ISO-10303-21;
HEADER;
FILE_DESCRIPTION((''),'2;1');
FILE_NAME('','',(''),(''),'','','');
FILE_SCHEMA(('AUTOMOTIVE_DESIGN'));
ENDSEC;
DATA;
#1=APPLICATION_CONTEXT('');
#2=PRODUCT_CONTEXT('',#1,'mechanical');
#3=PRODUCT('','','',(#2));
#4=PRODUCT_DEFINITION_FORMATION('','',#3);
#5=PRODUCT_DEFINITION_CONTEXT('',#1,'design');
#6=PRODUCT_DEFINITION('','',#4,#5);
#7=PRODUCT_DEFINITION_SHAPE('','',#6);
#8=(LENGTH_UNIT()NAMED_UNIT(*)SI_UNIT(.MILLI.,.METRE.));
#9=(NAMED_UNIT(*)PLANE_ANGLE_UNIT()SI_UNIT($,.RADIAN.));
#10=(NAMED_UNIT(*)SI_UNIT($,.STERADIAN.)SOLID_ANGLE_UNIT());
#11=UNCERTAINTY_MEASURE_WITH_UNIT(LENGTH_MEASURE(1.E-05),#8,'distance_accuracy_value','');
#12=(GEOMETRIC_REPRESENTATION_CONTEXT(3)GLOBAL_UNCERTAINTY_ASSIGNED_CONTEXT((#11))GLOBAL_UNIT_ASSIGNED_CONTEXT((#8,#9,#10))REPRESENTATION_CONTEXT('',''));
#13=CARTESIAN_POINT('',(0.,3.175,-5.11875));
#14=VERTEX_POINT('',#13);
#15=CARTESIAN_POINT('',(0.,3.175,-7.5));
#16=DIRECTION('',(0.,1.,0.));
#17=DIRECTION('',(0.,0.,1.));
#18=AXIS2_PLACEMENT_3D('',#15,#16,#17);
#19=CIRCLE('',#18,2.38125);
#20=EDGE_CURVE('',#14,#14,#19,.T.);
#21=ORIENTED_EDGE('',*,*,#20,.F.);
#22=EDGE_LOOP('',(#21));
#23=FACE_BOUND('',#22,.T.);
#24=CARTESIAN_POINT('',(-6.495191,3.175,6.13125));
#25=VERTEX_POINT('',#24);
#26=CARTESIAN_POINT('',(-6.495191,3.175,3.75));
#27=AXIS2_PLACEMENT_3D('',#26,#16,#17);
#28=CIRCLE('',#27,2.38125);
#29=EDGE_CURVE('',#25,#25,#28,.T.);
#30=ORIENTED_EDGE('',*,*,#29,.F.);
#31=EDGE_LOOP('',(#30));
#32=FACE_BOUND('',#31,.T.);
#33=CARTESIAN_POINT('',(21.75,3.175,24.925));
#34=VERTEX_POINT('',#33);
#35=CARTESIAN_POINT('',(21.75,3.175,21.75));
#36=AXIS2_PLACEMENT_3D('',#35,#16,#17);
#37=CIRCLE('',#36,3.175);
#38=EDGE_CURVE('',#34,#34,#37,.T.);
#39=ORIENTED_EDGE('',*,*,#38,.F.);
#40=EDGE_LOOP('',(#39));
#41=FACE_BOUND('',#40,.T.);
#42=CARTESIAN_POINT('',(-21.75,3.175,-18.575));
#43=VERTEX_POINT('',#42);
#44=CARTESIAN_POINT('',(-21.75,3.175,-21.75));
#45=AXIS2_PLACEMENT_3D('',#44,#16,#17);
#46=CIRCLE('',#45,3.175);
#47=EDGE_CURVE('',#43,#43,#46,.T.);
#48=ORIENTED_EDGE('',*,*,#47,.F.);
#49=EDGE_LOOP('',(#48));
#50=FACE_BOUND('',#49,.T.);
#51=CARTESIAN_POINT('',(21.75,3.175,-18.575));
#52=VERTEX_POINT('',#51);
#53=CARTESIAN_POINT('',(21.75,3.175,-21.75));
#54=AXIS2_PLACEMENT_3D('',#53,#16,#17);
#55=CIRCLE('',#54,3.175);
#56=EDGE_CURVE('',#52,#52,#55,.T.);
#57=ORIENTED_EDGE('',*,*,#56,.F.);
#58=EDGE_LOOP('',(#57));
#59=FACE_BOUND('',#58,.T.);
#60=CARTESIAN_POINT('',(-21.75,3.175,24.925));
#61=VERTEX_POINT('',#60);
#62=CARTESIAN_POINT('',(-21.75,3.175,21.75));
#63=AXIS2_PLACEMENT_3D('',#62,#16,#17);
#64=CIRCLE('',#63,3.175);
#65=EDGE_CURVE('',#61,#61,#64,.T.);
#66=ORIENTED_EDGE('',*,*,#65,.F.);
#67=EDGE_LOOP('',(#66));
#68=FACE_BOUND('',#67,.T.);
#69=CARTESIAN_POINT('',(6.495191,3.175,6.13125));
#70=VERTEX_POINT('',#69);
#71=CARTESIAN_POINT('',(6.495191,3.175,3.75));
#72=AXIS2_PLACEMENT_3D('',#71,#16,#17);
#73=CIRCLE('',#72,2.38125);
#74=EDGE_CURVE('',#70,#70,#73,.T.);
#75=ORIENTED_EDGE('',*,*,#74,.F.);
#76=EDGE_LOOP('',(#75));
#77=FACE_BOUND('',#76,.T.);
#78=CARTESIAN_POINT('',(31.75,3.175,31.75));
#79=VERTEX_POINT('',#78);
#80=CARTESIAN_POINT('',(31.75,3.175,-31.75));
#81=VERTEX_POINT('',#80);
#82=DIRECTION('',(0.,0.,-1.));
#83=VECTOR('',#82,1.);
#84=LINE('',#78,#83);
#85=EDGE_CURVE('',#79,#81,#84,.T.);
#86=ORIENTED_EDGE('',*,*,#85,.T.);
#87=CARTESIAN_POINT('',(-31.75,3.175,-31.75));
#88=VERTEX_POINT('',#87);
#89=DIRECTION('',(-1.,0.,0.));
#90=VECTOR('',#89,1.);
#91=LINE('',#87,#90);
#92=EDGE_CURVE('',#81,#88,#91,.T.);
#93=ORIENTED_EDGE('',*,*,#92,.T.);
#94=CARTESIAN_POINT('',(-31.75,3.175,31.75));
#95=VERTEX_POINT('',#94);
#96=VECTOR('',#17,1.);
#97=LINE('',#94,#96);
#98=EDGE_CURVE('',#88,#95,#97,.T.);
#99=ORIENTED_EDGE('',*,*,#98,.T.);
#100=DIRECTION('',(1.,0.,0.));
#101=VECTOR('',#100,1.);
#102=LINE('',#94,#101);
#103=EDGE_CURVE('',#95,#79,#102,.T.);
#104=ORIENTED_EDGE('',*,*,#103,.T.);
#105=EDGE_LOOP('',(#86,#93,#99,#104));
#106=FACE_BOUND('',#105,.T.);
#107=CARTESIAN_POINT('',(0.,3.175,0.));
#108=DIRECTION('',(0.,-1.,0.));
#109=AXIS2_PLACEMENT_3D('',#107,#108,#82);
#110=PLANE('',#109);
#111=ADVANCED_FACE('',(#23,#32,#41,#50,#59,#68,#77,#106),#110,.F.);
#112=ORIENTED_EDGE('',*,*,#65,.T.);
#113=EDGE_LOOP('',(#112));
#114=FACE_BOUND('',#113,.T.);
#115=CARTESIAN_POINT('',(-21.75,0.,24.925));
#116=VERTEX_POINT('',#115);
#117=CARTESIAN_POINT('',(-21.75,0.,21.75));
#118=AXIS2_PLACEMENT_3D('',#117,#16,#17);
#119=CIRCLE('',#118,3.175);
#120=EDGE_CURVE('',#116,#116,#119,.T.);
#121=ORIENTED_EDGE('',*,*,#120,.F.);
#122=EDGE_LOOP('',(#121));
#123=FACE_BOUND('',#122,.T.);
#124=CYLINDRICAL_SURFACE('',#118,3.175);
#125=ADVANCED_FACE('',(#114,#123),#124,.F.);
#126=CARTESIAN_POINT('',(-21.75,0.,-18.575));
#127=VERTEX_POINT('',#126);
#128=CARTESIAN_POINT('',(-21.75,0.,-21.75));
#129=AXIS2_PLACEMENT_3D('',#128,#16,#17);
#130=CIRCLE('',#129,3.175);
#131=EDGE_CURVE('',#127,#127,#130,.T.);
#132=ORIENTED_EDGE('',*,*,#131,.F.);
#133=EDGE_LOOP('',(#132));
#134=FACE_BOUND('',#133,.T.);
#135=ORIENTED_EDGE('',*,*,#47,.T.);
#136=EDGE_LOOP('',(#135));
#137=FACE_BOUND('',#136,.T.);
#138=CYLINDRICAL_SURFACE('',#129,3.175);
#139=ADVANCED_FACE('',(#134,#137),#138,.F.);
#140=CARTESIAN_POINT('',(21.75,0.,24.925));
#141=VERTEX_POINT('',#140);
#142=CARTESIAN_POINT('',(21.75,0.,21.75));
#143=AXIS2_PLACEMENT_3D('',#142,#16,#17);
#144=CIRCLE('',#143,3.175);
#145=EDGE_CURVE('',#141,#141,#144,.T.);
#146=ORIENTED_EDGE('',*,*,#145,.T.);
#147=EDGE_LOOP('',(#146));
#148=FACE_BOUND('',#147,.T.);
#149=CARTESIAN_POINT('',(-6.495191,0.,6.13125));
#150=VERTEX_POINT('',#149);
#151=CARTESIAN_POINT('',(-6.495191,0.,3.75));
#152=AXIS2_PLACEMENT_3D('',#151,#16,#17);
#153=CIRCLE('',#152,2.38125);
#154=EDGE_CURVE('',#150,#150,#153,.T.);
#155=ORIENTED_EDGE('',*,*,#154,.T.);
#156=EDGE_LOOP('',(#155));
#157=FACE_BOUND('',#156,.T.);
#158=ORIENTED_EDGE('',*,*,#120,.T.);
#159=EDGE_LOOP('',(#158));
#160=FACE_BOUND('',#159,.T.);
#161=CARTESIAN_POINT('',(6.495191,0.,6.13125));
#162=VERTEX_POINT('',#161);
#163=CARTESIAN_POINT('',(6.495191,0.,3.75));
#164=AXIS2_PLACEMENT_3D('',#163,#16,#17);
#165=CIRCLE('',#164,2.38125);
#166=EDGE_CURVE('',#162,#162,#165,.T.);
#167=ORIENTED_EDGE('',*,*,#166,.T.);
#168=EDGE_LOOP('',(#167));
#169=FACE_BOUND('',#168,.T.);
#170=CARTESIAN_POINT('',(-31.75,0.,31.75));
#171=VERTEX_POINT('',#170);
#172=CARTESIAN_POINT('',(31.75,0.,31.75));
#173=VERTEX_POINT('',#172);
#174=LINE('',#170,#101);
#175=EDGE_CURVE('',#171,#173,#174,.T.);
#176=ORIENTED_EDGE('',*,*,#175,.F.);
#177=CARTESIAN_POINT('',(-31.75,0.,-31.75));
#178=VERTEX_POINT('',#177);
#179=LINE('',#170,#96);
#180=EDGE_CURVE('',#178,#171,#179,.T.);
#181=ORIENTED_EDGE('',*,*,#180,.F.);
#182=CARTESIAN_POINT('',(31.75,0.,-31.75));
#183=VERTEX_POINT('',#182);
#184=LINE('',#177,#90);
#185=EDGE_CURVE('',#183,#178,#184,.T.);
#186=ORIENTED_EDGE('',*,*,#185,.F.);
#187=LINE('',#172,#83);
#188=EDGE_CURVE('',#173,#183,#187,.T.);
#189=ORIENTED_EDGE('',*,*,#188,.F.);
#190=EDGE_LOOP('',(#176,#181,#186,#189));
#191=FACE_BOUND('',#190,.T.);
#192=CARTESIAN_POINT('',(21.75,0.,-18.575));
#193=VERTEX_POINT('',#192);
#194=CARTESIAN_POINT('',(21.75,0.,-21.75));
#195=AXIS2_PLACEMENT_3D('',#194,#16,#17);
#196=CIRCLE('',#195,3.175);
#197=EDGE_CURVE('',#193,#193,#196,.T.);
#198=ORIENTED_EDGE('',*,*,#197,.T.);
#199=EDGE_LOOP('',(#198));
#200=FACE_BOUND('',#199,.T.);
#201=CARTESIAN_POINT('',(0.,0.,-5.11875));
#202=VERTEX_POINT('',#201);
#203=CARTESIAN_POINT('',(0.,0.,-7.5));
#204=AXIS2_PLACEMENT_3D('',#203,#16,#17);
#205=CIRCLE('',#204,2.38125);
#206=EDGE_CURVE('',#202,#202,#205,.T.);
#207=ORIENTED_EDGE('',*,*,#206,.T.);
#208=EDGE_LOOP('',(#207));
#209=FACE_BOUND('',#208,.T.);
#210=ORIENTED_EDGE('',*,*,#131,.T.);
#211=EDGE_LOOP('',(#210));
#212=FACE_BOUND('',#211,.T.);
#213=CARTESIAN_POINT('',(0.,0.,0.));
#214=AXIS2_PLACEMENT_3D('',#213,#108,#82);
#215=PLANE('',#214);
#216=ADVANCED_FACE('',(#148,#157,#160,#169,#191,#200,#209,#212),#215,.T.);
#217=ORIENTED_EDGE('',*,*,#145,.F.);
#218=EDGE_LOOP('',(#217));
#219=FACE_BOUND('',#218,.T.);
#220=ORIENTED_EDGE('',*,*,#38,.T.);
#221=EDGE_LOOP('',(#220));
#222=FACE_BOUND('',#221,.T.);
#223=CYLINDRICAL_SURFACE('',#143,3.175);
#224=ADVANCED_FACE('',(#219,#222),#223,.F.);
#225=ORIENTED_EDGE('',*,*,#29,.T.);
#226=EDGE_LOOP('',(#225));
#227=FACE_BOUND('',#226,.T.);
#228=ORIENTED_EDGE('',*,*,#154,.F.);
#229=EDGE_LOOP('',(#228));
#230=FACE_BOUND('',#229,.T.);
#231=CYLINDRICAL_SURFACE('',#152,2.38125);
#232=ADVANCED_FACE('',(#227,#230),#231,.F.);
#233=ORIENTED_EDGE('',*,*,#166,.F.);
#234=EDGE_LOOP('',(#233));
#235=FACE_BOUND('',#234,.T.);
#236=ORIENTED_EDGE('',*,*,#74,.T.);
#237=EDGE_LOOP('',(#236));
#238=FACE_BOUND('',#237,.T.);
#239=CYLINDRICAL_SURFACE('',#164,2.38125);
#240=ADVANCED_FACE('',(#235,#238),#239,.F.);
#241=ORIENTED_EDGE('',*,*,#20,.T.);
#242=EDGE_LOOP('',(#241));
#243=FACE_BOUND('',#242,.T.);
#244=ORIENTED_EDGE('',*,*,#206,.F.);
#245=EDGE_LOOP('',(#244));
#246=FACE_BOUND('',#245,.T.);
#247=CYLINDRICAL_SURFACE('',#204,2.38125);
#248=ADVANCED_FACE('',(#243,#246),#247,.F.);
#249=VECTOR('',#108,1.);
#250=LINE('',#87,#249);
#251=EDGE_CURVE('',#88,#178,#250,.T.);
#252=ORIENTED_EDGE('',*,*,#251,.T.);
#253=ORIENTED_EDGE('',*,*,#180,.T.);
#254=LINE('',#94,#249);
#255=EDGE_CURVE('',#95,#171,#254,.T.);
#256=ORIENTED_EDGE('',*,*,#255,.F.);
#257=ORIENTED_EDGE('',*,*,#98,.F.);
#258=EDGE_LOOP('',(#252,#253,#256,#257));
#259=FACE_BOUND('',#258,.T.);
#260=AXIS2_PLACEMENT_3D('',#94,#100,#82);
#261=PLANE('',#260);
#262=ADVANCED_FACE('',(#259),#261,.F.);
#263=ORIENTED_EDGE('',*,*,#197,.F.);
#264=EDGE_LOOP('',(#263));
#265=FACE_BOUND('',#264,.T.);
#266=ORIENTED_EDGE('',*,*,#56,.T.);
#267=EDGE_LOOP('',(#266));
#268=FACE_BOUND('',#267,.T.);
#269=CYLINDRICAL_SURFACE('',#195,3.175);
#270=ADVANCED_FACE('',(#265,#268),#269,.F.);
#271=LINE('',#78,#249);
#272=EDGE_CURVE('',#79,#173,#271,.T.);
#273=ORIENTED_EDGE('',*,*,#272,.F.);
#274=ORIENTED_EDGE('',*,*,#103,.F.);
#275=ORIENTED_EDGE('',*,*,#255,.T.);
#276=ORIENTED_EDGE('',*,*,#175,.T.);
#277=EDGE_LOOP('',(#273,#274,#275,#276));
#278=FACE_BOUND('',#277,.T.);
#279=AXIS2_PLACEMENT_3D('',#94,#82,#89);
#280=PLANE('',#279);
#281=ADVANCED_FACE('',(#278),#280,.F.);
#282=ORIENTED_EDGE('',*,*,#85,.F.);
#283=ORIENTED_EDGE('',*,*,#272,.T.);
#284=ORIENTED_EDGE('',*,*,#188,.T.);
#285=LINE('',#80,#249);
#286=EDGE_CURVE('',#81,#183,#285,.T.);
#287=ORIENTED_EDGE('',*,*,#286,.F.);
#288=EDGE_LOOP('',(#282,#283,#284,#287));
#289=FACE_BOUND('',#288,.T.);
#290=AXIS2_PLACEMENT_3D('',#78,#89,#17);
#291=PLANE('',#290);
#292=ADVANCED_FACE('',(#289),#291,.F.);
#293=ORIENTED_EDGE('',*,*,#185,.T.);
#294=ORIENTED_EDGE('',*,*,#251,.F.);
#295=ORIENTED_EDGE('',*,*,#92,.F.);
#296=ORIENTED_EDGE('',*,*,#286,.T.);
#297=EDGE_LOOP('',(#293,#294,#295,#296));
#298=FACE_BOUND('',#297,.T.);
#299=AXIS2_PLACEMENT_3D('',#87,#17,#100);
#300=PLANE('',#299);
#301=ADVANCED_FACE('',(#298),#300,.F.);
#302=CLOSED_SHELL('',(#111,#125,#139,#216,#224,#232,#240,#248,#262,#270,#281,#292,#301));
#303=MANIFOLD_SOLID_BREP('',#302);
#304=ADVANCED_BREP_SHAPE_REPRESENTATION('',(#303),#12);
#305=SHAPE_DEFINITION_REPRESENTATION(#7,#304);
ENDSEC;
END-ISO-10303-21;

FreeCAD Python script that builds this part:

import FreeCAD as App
import Part
import Sketcher

V = App.Vector
Q = App.Units.Quantity

doc = App.newDocument("Part")
body = doc.addObject("PartDesign::Body", "Body")

# Sketch on XZ plane
sketch1 = body.newObject("Sketcher::SketchObject", "Sketch")
sketch1.AttachmentSupport = (doc.getObject("XZ_Plane"), [""])
sketch1.MapMode = "FlatFace"
sketch1.addGeometry([
    Part.LineSegment(V(-32, -32, 0), V(-32, 32, 0)),
    Part.LineSegment(V(-32, 32, 0), V(32, 32, 0)),
    Part.LineSegment(V(32, 32, 0), V(32, -32, 0)),
    Part.LineSegment(V(32, -32, 0), V(-32, -32, 0)),
], False)
sketch1.addConstraint([
    Sketcher.Constraint("Coincident", 0, 2, 1, 1),
    Sketcher.Constraint("Coincident", 1, 2, 2, 1),
    Sketcher.Constraint("Coincident", 2, 2, 3, 1),
    Sketcher.Constraint("Coincident", 3, 2, 0, 1),
    Sketcher.Constraint("Vertical", 0),
    Sketcher.Constraint("Horizontal", 1),
    Sketcher.Constraint("Vertical", 2),
    Sketcher.Constraint("Horizontal", 3),
    Sketcher.Constraint("Symmetric", 0, 2, 2, 2, -1, 1),
    Sketcher.Constraint("Equal", 3, 0),
    Sketcher.Constraint("DistanceX", 1, 1, 1, 2, Q("2.5 in")),
])
pad1 = body.newObject("PartDesign::Pad", "Pad")
pad1.Profile = sketch1
pad1.Length = Q("0.125 in")
pad1.Reversed = True

# Sketch on XZ plane
sketch2 = body.newObject("Sketcher::SketchObject", "Sketch001")
sketch2.AttachmentSupport = (doc.getObject("XZ_Plane"), [""])
sketch2.MapMode = "FlatFace"
sketch2.AttachmentOffset = App.Placement(V(0, 0, -0.125 * 25.4), App.Rotation())
sketch2.addGeometry([
    Part.Circle(V(0, -7.5, 0), V(0, 0, 1), 2.4),
    Part.Circle(V(6.5, 3.8, 0), V(0, 0, 1), 2.4),
    Part.Circle(V(-6.5, 3.8, 0), V(0, 0, 1), 2.4),
], False)
sketch2.addConstraint([
    Sketcher.Constraint("Equal", 0, 1),
    Sketcher.Constraint("Equal", 1, 2),
    Sketcher.Constraint("Symmetric", 1, 3, 2, 3, -2),
    Sketcher.Constraint("PointOnObject", 0, 3, -2),
    Sketcher.Constraint("Diameter", 0, Q("0.1875 in")),
    Sketcher.Constraint("DistanceY", 0, 3, -1, 1, 7.5),
    Sketcher.Constraint("DistanceY", -1, 1, 1, 3, 3.75),
    Sketcher.Constraint("DistanceX", -1, 1, 1, 3, 6.495191),
])
pocket1 = body.newObject("PartDesign::Pocket", "Pocket")
pocket1.Profile = sketch2
pocket1.Type = "ThroughAll"
pocket1.Reversed = True

# Sketch on XZ plane
sketch3 = body.newObject("Sketcher::SketchObject", "Sketch002")
sketch3.AttachmentSupport = (doc.getObject("XZ_Plane"), [""])
sketch3.MapMode = "FlatFace"
sketch3.AttachmentOffset = App.Placement(V(0, 0, -0.125 * 25.4), App.Rotation())
sketch3.addGeometry([
    Part.Circle(V(-21.8, -21.8, 0), V(0, 0, 1), 3.2),
    Part.Circle(V(-21.8, 21.8, 0), V(0, 0, 1), 3.2),
    Part.Circle(V(21.8, 21.8, 0), V(0, 0, 1), 3.2),
    Part.Circle(V(21.8, -21.8, 0), V(0, 0, 1), 3.2),
], False)
sketch3.addConstraint([
    Sketcher.Constraint("Equal", 0, 1),
    Sketcher.Constraint("Equal", 1, 2),
    Sketcher.Constraint("Equal", 2, 3),
    Sketcher.Constraint("Symmetric", 0, 3, 2, 3, -1, 1),
    Sketcher.Constraint("Symmetric", 1, 3, 3, 3, -1, 1),
    Sketcher.Constraint("Symmetric", 1, 3, 2, 3, -2),
    Sketcher.Constraint("Diameter", 0, Q("0.25 in")),
    Sketcher.Constraint("DistanceX", 0, 3, -1, 1, 21.75),
    Sketcher.Constraint("DistanceY", 0, 3, -1, 1, 21.75),
])
pocket2 = body.newObject("PartDesign::Pocket", "Pocket001")
pocket2.Profile = sketch3
pocket2.Type = "ThroughAll"
pocket2.Reversed = True

doc.recompute()
